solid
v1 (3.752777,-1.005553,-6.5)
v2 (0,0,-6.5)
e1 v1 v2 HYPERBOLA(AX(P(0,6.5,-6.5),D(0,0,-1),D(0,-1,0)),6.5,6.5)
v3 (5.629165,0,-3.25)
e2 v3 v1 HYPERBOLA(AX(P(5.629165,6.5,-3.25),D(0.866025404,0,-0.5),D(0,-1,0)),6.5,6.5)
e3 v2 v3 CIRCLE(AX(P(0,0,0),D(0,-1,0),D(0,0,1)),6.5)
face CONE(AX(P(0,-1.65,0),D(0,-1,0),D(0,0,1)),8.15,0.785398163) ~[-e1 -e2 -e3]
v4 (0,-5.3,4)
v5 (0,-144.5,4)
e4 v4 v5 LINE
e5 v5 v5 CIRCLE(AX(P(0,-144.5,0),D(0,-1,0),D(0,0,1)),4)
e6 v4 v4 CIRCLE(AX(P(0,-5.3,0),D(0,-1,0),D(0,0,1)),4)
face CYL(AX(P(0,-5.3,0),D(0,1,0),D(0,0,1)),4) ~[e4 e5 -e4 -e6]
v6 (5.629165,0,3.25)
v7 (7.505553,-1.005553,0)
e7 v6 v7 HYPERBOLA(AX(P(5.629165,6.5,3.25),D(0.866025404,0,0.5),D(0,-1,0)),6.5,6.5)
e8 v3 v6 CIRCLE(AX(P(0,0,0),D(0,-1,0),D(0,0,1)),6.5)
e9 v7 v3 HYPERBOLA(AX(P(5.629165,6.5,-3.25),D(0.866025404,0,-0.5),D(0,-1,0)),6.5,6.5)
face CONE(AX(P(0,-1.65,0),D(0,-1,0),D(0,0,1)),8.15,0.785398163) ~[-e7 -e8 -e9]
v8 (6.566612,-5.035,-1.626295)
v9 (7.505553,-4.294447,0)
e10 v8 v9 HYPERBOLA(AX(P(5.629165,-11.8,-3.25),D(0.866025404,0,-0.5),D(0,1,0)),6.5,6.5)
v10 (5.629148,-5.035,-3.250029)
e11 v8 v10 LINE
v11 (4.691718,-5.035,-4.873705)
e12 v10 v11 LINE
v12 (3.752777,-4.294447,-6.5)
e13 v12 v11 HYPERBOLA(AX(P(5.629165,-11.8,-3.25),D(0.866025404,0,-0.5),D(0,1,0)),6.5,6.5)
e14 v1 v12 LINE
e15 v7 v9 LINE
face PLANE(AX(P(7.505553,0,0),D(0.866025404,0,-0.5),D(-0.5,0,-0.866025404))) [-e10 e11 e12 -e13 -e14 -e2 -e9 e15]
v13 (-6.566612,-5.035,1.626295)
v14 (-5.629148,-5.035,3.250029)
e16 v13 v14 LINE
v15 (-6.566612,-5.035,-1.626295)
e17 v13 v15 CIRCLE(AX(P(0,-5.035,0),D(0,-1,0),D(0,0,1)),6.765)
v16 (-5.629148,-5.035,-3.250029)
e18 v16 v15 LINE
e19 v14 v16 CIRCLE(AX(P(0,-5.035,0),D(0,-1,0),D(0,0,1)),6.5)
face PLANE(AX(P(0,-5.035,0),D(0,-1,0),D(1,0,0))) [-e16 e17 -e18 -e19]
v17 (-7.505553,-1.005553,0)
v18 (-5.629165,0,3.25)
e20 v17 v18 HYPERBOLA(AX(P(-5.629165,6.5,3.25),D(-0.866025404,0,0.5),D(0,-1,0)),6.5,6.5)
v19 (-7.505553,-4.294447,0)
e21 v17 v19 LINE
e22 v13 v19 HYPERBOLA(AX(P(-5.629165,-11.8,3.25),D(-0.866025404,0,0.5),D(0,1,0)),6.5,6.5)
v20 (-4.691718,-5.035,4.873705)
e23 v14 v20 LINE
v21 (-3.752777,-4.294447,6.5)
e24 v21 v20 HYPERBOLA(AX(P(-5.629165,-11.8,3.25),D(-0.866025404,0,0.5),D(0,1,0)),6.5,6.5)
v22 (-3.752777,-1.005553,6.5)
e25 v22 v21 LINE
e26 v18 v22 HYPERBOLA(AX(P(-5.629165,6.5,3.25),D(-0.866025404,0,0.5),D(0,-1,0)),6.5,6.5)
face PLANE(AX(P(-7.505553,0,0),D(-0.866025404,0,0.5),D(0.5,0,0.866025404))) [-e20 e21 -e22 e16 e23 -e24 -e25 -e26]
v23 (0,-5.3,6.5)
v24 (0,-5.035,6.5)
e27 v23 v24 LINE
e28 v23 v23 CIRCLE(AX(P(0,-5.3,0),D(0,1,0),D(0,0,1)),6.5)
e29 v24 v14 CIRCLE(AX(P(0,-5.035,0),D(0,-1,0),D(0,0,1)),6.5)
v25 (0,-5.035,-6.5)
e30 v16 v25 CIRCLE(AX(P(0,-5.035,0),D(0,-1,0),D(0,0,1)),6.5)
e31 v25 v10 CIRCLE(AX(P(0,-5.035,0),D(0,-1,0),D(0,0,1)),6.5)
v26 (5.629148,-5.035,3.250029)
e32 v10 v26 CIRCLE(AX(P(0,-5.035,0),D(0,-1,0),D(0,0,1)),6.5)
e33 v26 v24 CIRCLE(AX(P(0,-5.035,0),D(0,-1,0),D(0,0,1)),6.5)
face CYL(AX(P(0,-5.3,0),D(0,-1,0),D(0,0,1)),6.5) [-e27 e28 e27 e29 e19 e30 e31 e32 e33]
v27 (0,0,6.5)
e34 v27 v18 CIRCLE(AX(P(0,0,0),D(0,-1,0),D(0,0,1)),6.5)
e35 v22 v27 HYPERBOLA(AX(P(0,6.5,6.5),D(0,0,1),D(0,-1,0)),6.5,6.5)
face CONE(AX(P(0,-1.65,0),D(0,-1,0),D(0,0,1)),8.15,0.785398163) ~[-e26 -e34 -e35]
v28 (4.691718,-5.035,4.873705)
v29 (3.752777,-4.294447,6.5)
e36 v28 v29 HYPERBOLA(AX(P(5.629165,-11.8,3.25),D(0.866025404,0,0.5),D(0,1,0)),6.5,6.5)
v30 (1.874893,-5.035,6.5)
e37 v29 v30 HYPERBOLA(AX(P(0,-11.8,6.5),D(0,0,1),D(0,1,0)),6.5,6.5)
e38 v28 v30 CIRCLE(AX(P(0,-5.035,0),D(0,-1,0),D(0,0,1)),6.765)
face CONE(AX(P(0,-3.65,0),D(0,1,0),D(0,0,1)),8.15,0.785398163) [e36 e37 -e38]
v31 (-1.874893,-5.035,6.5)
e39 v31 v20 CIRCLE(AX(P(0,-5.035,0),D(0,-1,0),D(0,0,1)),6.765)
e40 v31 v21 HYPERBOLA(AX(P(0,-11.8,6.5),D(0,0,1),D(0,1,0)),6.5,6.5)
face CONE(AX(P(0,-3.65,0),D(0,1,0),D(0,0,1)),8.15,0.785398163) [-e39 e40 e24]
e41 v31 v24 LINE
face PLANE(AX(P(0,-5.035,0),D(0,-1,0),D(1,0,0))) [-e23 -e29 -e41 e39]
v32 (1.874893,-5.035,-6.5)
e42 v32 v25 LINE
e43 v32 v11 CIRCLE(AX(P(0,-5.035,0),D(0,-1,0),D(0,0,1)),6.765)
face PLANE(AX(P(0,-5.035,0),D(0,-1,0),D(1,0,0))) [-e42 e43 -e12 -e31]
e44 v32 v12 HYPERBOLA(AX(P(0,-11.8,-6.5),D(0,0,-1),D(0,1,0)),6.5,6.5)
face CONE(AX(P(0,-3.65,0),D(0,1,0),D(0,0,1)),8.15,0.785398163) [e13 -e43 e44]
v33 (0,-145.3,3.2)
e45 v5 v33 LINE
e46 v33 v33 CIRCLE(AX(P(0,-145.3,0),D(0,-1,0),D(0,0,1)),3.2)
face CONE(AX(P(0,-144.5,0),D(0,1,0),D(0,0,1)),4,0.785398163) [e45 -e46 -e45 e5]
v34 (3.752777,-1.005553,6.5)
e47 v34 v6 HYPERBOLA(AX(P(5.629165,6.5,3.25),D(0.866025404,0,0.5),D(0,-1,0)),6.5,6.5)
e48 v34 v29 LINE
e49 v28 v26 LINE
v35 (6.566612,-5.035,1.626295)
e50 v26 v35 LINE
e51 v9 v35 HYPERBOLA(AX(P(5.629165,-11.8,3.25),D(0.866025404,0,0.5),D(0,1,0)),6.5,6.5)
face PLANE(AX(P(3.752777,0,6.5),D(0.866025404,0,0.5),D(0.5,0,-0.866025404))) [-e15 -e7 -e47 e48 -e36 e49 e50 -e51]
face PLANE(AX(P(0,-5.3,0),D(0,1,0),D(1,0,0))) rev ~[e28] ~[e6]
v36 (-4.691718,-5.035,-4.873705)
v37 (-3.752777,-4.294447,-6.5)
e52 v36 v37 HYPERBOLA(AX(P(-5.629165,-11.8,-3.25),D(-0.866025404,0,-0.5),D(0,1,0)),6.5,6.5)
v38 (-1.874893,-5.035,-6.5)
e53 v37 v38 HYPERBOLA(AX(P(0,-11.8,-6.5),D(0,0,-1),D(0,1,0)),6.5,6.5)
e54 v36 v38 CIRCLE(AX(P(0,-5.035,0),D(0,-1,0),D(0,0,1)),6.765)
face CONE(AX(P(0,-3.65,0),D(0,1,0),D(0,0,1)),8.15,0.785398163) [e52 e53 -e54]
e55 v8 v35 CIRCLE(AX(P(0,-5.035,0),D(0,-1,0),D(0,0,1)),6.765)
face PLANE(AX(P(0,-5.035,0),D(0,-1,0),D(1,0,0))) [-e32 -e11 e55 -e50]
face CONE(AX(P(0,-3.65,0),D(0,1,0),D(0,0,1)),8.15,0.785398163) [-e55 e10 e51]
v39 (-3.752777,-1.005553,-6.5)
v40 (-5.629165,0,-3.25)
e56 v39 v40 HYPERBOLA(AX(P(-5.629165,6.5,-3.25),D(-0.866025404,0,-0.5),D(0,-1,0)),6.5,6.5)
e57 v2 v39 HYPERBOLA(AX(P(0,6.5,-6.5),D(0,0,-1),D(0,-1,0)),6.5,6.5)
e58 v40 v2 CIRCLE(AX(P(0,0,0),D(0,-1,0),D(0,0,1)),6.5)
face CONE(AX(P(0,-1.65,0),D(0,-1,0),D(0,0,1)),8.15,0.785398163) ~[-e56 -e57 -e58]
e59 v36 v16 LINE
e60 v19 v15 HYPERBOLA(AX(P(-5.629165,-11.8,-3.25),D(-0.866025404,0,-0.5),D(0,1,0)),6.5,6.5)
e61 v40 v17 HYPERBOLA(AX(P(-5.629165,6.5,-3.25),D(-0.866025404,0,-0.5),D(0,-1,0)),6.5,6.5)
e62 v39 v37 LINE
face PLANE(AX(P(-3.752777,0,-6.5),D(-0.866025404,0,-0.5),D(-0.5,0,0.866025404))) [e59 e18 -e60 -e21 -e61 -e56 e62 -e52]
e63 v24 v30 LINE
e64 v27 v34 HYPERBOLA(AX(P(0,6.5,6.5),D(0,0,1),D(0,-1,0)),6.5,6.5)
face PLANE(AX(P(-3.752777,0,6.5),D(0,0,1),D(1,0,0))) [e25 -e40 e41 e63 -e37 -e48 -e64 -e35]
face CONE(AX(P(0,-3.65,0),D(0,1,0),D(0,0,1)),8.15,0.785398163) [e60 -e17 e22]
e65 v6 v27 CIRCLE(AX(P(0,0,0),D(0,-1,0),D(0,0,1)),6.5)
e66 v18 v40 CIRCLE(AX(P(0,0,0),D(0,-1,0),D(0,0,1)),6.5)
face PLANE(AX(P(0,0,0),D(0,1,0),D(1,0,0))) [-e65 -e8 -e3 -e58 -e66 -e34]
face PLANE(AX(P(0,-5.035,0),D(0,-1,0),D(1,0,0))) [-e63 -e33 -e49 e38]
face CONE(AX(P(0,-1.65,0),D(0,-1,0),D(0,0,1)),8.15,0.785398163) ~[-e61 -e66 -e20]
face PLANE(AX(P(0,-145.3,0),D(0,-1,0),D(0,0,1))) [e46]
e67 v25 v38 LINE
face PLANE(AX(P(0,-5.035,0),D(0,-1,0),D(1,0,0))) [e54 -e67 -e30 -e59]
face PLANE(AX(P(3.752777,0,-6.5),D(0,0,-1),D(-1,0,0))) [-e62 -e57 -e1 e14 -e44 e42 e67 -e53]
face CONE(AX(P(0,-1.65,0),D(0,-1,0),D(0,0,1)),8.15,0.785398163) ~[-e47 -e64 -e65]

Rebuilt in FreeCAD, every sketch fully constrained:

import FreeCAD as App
import Part
import Sketcher

V = App.Vector
Q = App.Units.Quantity


def edges_at(feature, points):
    """Names of the edges that pass closest to the given points."""
    edges = feature.Shape.Edges
    near = lambda p: min(range(len(edges)), key=lambda i: edges[i].distToShape(Part.Vertex(*p))[0])
    return sorted({f"Edge{near(p) + 1}" for p in points})

doc = App.newDocument("Part")
body = doc.addObject("PartDesign::Body", "Body")

# Sketch on XZ plane
sketch1 = body.newObject("Sketcher::SketchObject", "Sketch")
sketch1.AttachmentSupport = (doc.getObject("XZ_Plane"), [""])
sketch1.MapMode = "FlatFace"
sketch1.addGeometry([
    Part.LineSegment(V(7.505553, 0, 0), V(3.752777, -6.5, 0)),  # 0
    Part.LineSegment(V(3.752777, -6.5, 0), V(-3.752777, -6.5, 0)),  # 1
    Part.LineSegment(V(-3.752777, -6.5, 0), V(-7.505553, 0, 0)),  # 2
    Part.LineSegment(V(-7.505553, 0, 0), V(-3.752777, 6.5, 0)),  # 3
    Part.LineSegment(V(-3.752777, 6.5, 0), V(3.752777, 6.5, 0)),  # 4
    Part.LineSegment(V(3.752777, 6.5, 0), V(7.505553, 0, 0)),  # 5
], False)
sketch1.addConstraint([
    Sketcher.Constraint("Coincident", 0, 2, 1, 1),
    Sketcher.Constraint("Coincident", 1, 2, 2, 1),
    Sketcher.Constraint("Coincident", 2, 2, 3, 1),
    Sketcher.Constraint("Coincident", 3, 2, 4, 1),
    Sketcher.Constraint("Coincident", 4, 2, 5, 1),
    Sketcher.Constraint("Coincident", 5, 2, 0, 1),
    Sketcher.Constraint("Horizontal", 1),
    Sketcher.Constraint("Horizontal", 4),
    Sketcher.Constraint("Symmetric", 0, 2, 3, 2, -1, 1),
    Sketcher.Constraint("Symmetric", 2, 2, 5, 2, -1, 1),
    Sketcher.Constraint("PointOnObject", 2, 2, -1),
    Sketcher.Constraint("Parallel", 2, 5),
    Sketcher.Constraint("Vertical", 1, 2, 3, 2),
    Sketcher.Constraint("Angle", 0, Q("-120 deg")),
    Sketcher.Constraint("DistanceY", 1, 2, 3, 2, Q("13 mm")),
    Sketcher.Constraint("DistanceX", 1, 2, 1, 1, Q("7.505554 mm")),
])
pad1 = body.newObject("PartDesign::Pad", "Pad")
pad1.Profile = sketch1
pad1.Length = 5.3

# Sketch on YZ plane
sketch2 = body.newObject("Sketcher::SketchObject", "Sketch001")
sketch2.AttachmentSupport = (doc.getObject("YZ_Plane"), [""])
sketch2.MapMode = "FlatFace"
sketch2.addGeometry([
    Part.LineSegment(V(0, 6.5, 0), V(0, 8.15, 0)),  # 0
    Part.LineSegment(V(0, 8.15, 0), V(-1.65, 8.15, 0)),  # 1
    Part.LineSegment(V(-1.65, 8.15, 0), V(0, 6.5, 0)),  # 2
    Part.LineSegment(V(-5.3, 6.5, 0), V(-3.65, 8.15, 0)),  # 3
    Part.LineSegment(V(-3.65, 8.15, 0), V(-5.3, 8.15, 0)),  # 4
    Part.LineSegment(V(-5.3, 8.15, 0), V(-5.3, 6.5, 0)),  # 5
], False)
sketch2.addConstraint([
    Sketcher.Constraint("Coincident", 0, 2, 1, 1),
    Sketcher.Constraint("Coincident", 1, 2, 2, 1),
    Sketcher.Constraint("Coincident", 2, 2, 0, 1),
    Sketcher.Constraint("Coincident", 3, 2, 4, 1),
    Sketcher.Constraint("Coincident", 4, 2, 5, 1),
    Sketcher.Constraint("Coincident", 5, 2, 3, 1),
    Sketcher.Constraint("Vertical", 0),
    Sketcher.Constraint("Horizontal", 1),
    Sketcher.Constraint("Horizontal", 4),
    Sketcher.Constraint("Vertical", 5),
    Sketcher.Constraint("PointOnObject", 0, 2, -2),
    Sketcher.Constraint("Perpendicular", 2, 3),
    Sketcher.Constraint("Horizontal", 1, 2, 3, 2),
    Sketcher.Constraint("Horizontal", 2, 2, 5, 2),
    Sketcher.Constraint("Equal", 1, 4),
    Sketcher.Constraint("DistanceX", 3, 2, 1, 2, Q("2 mm")),
    Sketcher.Constraint("DistanceX", 1, 2, 1, 1, Q("1.65 mm")),
    Sketcher.Constraint("DistanceY", -1, 1, 2, 2, Q("6.5 mm")),
])
groove = body.newObject("PartDesign::Groove", "Groove")
groove.Profile = sketch2
groove.ReferenceAxis = (sketch2, ["H_Axis"])
groove.Angle = 360

# Sketch on XZ plane
sketch3 = body.newObject("Sketcher::SketchObject", "Sketch002")
sketch3.AttachmentSupport = (doc.getObject("XZ_Plane"), [""])
sketch3.MapMode = "FlatFace"
sketch3.AttachmentOffset = App.Placement(V(0, 0, 5.3), App.Rotation())
sketch3.addGeometry([
    Part.LineSegment(V(-10.561, 9.555, 0), V(-10.561, -9.555, 0)),  # 0
    Part.LineSegment(V(-10.561, -9.555, 0), V(10.561, -9.555, 0)),  # 1
    Part.LineSegment(V(10.561, -9.555, 0), V(10.561, 9.555, 0)),  # 2
    Part.LineSegment(V(10.561, 9.555, 0), V(-10.561, 9.555, 0)),  # 3
    Part.Circle(V(0, 0, 0), V(0, 0, 1), 6.5),  # 4
], False)
sketch3.addConstraint([
    Sketcher.Constraint("Coincident", 0, 2, 1, 1),
    Sketcher.Constraint("Coincident", 1, 2, 2, 1),
    Sketcher.Constraint("Coincident", 2, 2, 3, 1),
    Sketcher.Constraint("Coincident", 3, 2, 0, 1),
    Sketcher.Constraint("Vertical", 0),
    Sketcher.Constraint("Horizontal", 1),
    Sketcher.Constraint("Vertical", 2),
    Sketcher.Constraint("Horizontal", 3),
    Sketcher.Constraint("Coincident", 4, 3, -1, 1),
    Sketcher.Constraint("Symmetric", 0, 2, 2, 2, -1, 1),
    Sketcher.Constraint("Diameter", 4, Q("13 mm")),
    Sketcher.Constraint("DistanceY", 0, 2, 0, 1, Q("19.11 mm")),
    Sketcher.Constraint("DistanceX", 1, 1, 1, 2, Q("21.122 mm")),
])
pocket1 = body.newObject("PartDesign::Pocket", "Pocket")
pocket1.Profile = sketch3
pocket1.Length = 0.265

# Sketch on XZ plane
sketch4 = body.newObject("Sketcher::SketchObject", "Sketch003")
sketch4.AttachmentSupport = (doc.getObject("XZ_Plane"), [""])
sketch4.MapMode = "FlatFace"
sketch4.AttachmentOffset = App.Placement(V(0, 0, 5.3), App.Rotation())
sketch4.addGeometry(Part.Circle(V(0, 0, 0), V(0, 0, 1), 4), False)
sketch4.addConstraint([
    Sketcher.Constraint("Coincident", 0, 3, -1, 1),
    Sketcher.Constraint("Diameter", 0, Q("8 mm")),
])
pad2 = body.newObject("PartDesign::Pad", "Pad001")
pad2.Profile = sketch4
pad2.Length = 140
doc.recompute()

chamfer = body.newObject("PartDesign::Chamfer", "Chamfer")
chamfer.Base = (pad2, edges_at(pad2, [(0, -145.3, -4)]))
chamfer.Size = 0.8

doc.recompute()
